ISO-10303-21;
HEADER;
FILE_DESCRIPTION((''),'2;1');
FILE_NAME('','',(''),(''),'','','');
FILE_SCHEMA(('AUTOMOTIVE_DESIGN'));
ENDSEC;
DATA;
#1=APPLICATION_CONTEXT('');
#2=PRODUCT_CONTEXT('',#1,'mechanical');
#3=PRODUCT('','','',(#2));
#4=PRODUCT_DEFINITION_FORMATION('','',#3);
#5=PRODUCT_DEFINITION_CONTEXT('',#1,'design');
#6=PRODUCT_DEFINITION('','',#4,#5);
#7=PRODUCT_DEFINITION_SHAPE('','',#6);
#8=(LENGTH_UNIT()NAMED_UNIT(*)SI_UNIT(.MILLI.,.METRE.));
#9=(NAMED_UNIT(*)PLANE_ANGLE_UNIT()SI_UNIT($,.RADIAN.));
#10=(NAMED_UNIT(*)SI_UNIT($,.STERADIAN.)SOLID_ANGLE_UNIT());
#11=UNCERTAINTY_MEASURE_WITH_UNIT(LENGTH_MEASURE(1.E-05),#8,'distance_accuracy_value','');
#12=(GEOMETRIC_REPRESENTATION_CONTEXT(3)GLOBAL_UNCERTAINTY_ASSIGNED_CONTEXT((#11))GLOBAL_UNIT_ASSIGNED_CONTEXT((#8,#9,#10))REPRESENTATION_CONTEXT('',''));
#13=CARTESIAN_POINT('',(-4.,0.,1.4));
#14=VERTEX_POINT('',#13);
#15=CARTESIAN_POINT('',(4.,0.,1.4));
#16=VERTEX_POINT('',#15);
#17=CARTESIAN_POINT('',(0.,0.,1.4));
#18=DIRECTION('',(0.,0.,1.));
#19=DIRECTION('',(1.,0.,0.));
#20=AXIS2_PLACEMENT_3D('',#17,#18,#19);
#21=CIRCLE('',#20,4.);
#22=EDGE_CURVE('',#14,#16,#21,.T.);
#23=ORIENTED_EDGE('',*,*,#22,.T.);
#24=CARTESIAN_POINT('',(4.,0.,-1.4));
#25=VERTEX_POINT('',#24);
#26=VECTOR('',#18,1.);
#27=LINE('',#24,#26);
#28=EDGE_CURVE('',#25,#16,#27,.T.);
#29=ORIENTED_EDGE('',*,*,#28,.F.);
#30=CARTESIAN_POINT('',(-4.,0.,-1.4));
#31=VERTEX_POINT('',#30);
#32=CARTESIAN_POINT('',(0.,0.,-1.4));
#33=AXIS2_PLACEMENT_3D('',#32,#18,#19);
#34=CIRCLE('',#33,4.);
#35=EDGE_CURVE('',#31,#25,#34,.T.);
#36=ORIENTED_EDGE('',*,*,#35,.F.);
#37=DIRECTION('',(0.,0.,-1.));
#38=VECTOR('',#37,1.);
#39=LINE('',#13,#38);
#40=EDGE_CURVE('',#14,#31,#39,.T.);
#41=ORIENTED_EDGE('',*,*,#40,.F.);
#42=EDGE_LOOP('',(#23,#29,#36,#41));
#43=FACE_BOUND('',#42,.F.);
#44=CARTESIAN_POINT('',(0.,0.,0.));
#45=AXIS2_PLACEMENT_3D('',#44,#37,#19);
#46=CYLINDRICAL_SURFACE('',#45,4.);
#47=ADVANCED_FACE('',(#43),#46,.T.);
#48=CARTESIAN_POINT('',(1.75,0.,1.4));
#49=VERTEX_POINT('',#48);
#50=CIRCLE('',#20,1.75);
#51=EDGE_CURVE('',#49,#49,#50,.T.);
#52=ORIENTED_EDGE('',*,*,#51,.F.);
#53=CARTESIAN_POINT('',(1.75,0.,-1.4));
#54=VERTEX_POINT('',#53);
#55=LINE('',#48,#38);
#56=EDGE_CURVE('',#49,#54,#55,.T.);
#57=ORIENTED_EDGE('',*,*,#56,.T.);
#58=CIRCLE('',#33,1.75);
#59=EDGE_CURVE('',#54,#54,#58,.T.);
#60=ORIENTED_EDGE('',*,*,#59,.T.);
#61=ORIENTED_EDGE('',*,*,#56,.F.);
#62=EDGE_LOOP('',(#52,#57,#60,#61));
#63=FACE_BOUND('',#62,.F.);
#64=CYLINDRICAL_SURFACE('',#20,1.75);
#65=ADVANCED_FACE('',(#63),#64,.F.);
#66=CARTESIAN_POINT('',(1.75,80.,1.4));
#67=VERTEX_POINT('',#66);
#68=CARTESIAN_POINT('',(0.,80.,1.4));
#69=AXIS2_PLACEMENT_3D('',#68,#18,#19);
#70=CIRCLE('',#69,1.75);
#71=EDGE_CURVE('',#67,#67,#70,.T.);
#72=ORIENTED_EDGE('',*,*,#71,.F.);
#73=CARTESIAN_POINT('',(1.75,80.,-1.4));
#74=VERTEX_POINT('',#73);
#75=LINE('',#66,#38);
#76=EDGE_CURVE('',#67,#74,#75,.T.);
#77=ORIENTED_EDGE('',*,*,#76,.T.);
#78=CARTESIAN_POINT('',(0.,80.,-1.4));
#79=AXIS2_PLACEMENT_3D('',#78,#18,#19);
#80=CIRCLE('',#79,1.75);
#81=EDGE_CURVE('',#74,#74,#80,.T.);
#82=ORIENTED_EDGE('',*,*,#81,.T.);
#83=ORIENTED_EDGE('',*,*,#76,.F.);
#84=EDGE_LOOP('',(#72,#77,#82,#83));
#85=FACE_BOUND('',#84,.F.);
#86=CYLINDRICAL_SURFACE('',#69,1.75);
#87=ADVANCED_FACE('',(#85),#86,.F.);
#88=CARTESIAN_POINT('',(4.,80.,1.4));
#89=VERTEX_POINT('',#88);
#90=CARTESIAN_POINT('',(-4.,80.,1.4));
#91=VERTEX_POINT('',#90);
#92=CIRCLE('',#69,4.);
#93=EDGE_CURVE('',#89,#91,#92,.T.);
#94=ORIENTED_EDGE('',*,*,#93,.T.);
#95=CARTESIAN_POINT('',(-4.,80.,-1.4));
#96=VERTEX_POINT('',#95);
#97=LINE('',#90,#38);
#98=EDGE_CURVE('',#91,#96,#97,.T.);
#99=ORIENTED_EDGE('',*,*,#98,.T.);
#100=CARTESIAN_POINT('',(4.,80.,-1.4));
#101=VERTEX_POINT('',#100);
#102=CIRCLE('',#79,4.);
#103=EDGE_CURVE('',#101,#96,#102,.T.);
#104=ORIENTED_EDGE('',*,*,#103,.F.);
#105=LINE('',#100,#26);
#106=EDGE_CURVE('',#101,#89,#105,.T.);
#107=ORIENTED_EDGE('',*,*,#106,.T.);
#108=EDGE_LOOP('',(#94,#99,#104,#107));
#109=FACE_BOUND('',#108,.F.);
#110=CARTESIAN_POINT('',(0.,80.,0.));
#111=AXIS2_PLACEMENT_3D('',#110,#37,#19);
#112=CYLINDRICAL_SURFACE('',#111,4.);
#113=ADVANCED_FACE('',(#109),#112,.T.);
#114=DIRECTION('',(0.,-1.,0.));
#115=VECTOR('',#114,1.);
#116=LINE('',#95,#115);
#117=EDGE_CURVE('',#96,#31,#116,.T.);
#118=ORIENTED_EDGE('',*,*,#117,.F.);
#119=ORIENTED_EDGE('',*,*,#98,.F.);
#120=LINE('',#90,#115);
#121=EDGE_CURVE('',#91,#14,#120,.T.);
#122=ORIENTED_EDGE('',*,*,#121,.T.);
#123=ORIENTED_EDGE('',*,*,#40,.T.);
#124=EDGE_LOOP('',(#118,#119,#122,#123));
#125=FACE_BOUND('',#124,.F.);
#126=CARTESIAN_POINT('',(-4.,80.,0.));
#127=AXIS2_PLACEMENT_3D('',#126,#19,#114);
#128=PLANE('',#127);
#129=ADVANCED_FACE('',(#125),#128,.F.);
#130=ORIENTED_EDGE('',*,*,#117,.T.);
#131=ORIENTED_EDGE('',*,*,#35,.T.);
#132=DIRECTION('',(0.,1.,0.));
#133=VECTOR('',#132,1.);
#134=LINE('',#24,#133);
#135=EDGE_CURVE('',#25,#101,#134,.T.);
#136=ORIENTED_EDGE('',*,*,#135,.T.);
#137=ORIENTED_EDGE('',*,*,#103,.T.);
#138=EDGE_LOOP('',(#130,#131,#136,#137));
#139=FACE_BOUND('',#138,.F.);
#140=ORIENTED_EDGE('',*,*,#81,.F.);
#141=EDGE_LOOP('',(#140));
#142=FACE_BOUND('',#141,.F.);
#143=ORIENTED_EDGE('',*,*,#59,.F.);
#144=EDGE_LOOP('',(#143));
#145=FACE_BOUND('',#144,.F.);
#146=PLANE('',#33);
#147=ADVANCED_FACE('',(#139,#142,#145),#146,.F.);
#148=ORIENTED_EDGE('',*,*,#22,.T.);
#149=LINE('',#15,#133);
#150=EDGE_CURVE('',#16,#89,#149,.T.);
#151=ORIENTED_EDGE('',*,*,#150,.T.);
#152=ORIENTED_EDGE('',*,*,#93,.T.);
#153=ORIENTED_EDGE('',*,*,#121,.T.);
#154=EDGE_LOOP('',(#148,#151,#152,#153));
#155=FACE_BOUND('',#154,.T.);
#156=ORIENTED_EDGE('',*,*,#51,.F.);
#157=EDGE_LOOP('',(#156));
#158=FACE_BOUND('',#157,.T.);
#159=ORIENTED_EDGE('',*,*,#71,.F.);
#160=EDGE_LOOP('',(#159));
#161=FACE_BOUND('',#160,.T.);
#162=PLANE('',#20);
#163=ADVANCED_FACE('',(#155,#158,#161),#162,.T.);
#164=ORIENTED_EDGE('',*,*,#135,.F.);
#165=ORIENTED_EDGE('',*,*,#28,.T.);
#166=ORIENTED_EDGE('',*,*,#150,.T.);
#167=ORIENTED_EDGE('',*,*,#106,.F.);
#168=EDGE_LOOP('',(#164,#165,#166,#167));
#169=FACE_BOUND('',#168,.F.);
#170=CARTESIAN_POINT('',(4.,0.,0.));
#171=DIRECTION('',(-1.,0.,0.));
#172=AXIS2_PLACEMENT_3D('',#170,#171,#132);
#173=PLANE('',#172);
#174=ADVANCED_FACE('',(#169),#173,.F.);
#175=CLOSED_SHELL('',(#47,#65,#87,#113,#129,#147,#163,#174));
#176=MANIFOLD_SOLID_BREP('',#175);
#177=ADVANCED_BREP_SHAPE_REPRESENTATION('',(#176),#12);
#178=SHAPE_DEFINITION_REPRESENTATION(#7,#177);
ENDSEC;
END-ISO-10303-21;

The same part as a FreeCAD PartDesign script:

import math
import FreeCAD as App
import Part
import Sketcher

doc = App.newDocument("Part")
body = doc.addObject("PartDesign::Body", "Body")

sketch1 = body.newObject("Sketcher::SketchObject", "Sketch")
sketch1.AttachmentSupport = (doc.getObject("XY_Plane"), [""])
sketch1.MapMode = "FlatFace"
sketch1.addGeometry([
    Part.ArcOfCircle(Part.Circle(App.Vector(0, 0, 0), App.Vector(0, 0, 1), 4), math.radians(180), math.radians(360)),
    Part.LineSegment(App.Vector(4, 0, 0), App.Vector(4, 80, 0)),
    Part.ArcOfCircle(Part.Circle(App.Vector(0, 80, 0), App.Vector(0, 0, 1), 4), math.radians(0), math.radians(180)),
    Part.LineSegment(App.Vector(-4, 80, 0), App.Vector(-4, 0, 0)),
], False)
sketch1.addConstraint([
    Sketcher.Constraint("Tangent", 0, 2, 1, 1),
    Sketcher.Constraint("Tangent", 1, 2, 2, 1),
    Sketcher.Constraint("Tangent", 2, 2, 3, 1),
    Sketcher.Constraint("Tangent", 3, 2, 0, 1),
    Sketcher.Constraint("Vertical", 1),
    Sketcher.Constraint("Vertical", 3),
    Sketcher.Constraint("Coincident", 0, 3, -1, 1),
    Sketcher.Constraint("Radius", 0, 4.0),
    Sketcher.Constraint("DistanceY", 1, 1, 1, 2, 80.0),
])
pad1 = body.newObject("PartDesign::Pad", "Pad")
pad1.Profile = sketch1
pad1.Length = 2.8
pad1.Midplane = True

sketch2 = body.newObject("Sketcher::SketchObject", "Sketch001")
sketch2.AttachmentSupport = (doc.getObject("XY_Plane"), [""])
sketch2.MapMode = "FlatFace"
sketch2.AttachmentOffset = App.Placement(App.Vector(0, 0, 1.4), App.Rotation())
sketch2.addGeometry([
    Part.Circle(App.Vector(0, 0, 0), App.Vector(0, 0, 1), 1.8),
    Part.Circle(App.Vector(0, 80, 0), App.Vector(0, 0, 1), 1.8),
], False)
sketch2.addConstraint([
    Sketcher.Constraint("Coincident", 0, 3, -1, 1),
    Sketcher.Constraint("Equal", 0, 1),
    Sketcher.Constraint("PointOnObject", 1, 3, -2),
    Sketcher.Constraint("Diameter", 0, 3.5),
    Sketcher.Constraint("DistanceY", -1, 1, 1, 3, 80.0),
])
pocket1 = body.newObject("PartDesign::Pocket", "Pocket")
pocket1.Profile = sketch2
pocket1.Type = "ThroughAll"

doc.recompute()
